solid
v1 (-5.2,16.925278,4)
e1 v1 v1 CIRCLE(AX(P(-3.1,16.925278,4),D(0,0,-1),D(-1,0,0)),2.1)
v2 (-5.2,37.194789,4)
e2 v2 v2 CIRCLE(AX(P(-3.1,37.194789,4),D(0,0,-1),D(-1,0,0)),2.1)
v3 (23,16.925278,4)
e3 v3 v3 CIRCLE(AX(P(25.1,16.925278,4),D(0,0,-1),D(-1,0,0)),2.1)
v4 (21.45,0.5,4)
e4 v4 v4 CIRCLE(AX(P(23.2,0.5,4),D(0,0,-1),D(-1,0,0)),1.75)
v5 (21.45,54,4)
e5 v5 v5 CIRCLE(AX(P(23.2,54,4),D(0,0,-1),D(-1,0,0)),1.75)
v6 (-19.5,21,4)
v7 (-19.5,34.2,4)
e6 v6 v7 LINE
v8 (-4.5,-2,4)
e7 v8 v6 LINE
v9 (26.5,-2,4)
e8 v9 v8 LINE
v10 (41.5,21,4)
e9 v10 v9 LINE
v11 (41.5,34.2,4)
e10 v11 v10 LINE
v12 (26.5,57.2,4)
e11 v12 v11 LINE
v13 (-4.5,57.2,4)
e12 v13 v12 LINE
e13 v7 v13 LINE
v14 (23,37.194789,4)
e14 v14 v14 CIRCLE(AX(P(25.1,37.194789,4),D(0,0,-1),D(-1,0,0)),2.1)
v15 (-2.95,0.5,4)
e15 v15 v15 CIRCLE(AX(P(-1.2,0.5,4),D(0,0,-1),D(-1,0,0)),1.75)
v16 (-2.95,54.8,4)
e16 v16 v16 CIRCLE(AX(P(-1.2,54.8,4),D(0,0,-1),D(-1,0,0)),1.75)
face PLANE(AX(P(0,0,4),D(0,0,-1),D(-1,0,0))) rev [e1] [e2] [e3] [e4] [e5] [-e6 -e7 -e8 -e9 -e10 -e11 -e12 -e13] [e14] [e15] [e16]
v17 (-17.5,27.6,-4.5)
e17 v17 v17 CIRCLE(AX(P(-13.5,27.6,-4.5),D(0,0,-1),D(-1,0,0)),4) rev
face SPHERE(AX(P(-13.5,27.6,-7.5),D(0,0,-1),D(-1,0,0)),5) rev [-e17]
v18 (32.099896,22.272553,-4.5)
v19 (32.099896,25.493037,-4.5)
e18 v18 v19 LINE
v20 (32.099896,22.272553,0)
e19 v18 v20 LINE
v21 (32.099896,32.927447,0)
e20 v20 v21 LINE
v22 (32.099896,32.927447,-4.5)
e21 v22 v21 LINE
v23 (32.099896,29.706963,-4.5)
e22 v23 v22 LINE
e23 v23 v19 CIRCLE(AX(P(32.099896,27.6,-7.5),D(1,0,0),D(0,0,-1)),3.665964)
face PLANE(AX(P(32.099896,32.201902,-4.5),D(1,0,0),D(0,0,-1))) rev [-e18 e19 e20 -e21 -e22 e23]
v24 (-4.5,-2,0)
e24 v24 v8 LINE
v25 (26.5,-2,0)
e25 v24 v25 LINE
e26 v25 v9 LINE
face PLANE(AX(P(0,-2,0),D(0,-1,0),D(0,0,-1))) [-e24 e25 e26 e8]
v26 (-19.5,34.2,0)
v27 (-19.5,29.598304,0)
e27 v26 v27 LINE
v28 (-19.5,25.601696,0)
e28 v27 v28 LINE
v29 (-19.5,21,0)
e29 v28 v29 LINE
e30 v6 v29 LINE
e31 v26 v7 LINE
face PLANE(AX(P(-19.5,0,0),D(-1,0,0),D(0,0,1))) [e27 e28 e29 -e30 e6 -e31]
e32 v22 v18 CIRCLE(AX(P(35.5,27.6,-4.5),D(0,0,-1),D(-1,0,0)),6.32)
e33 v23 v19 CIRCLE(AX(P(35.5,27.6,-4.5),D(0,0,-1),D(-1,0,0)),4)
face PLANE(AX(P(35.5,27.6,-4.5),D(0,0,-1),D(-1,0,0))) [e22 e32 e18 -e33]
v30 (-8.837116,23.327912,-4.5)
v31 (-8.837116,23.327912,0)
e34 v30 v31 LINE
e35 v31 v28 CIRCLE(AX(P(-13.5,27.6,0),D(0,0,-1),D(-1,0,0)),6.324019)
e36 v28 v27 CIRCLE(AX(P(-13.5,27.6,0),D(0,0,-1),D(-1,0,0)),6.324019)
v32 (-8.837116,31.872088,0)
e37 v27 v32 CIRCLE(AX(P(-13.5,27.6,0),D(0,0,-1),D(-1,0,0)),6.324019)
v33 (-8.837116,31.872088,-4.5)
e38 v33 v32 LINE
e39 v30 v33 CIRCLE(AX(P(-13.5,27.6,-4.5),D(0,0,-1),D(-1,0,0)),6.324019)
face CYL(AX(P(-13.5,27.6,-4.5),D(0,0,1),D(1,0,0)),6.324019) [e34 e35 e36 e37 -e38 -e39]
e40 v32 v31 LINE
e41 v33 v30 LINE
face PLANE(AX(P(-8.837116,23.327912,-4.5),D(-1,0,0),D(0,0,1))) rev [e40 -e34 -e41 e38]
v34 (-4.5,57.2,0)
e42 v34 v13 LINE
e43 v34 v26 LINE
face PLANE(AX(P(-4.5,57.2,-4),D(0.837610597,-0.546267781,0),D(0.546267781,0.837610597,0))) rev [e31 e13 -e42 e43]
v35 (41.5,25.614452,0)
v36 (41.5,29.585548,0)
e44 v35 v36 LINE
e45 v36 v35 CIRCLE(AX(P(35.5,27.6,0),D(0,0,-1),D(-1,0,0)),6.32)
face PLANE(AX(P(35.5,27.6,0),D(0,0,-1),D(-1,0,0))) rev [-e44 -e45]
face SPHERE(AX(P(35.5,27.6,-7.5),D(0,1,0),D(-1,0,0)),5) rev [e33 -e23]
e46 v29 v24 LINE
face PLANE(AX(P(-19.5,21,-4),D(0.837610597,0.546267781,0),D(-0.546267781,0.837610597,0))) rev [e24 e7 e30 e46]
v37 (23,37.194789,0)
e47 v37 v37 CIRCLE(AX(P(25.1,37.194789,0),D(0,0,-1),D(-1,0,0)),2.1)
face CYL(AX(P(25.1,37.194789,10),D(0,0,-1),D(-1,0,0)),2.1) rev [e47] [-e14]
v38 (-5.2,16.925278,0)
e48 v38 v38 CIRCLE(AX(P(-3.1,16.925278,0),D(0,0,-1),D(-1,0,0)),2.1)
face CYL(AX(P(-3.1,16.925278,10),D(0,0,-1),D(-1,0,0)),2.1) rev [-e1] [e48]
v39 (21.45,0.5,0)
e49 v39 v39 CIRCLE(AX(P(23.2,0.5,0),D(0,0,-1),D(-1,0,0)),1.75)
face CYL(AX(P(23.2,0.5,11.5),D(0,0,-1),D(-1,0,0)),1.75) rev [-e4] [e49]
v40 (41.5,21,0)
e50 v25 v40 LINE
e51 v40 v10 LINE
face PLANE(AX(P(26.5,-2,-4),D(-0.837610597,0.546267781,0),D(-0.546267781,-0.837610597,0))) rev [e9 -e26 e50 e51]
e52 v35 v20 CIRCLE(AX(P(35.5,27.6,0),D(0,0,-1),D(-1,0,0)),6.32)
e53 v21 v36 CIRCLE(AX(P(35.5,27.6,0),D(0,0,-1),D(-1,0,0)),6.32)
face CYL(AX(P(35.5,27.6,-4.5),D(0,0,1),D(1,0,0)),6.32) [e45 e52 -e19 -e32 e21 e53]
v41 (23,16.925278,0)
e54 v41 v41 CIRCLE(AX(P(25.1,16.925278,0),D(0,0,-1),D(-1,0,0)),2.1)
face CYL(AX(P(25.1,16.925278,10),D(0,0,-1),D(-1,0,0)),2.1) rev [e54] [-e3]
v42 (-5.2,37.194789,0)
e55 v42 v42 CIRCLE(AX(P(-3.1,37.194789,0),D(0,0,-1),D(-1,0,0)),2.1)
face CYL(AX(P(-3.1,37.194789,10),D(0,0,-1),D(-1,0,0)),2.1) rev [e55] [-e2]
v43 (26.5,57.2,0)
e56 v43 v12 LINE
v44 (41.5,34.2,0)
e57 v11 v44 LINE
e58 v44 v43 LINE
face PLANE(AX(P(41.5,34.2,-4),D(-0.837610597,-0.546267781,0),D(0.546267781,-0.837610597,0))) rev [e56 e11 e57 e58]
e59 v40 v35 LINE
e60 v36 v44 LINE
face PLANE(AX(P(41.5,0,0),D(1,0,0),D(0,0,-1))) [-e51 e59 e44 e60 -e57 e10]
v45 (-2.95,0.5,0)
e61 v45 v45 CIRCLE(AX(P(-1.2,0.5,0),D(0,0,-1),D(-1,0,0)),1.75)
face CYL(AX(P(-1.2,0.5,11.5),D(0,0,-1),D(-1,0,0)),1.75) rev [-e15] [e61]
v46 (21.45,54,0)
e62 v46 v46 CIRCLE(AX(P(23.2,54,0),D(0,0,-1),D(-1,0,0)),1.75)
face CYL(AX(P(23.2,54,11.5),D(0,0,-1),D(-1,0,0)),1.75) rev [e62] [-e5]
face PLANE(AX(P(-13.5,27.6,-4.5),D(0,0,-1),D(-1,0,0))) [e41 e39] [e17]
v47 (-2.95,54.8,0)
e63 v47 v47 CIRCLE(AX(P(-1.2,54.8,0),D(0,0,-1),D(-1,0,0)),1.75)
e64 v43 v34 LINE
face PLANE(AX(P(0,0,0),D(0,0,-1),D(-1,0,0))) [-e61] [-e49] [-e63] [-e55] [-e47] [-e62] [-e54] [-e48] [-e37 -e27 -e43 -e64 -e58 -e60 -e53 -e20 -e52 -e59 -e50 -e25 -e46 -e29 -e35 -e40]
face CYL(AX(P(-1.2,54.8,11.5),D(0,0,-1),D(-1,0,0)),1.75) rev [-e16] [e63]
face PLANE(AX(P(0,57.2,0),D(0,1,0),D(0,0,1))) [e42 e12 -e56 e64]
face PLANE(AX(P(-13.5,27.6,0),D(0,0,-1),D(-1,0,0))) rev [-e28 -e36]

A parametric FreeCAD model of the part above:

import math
import FreeCAD as App
import Part
import Sketcher
Q = App.Units.Quantity

doc = App.newDocument("Part")
body = doc.addObject("PartDesign::Body", "Body")

# Sketch on XY plane
sketch1 = body.newObject("Sketcher::SketchObject", "Sketch")
sketch1.AttachmentSupport = (doc.getObject("XY_Plane"), [""])
sketch1.MapMode = "FlatFace"
sketch1.addGeometry([
    Part.LineSegment(App.Vector(0, 55, 0), App.Vector(0, 0, 0)),
    Part.LineSegment(App.Vector(0, 0, 0), App.Vector(22, 0, 0)),
    Part.LineSegment(App.Vector(22, 0, 0), App.Vector(22, 55, 0)),
    Part.LineSegment(App.Vector(22, 55, 0), App.Vector(0, 55, 0)),
], False)
sketch1.addConstraint([
    Sketcher.Constraint("Coincident", 0, 2, 1, 1),
    Sketcher.Constraint("Coincident", 1, 2, 2, 1),
    Sketcher.Constraint("Coincident", 2, 2, 3, 1),
    Sketcher.Constraint("Coincident", 3, 2, 0, 1),
    Sketcher.Constraint("Vertical", 0),
    Sketcher.Constraint("Horizontal", 1),
    Sketcher.Constraint("Vertical", 2),
    Sketcher.Constraint("Horizontal", 3),
    Sketcher.Constraint("Coincident", 0, 2, -1, 1),
    Sketcher.Constraint("DistanceX", 1, 1, 1, 2, Q("22 mm")),
    Sketcher.Constraint("DistanceY", 0, 2, 0, 1, Q("55.2 mm")),
])
pad1 = body.newObject("PartDesign::Pad", "Pad")
pad1.Profile = sketch1
pad1.Length = 4

# Sketch on XZ plane
sketch2 = body.newObject("Sketcher::SketchObject", "Sketch001")
sketch2.AttachmentSupport = (doc.getObject("XZ_Plane"), [""])
sketch2.MapMode = "FlatFace"
sketch2.AttachmentOffset = App.Placement(App.Vector(0, 0, -55.2), App.Rotation())
sketch2.addGeometry([
    Part.LineSegment(App.Vector(5, 0, 0), App.Vector(5, 4, 0)),
    Part.LineSegment(App.Vector(5, 4, 0), App.Vector(17.1, 4, 0)),
    Part.LineSegment(App.Vector(17.1, 4, 0), App.Vector(17.1, 0, 0)),
    Part.LineSegment(App.Vector(17.1, 0, 0), App.Vector(5, 0, 0)),
], False)
sketch2.addConstraint([
    Sketcher.Constraint("Coincident", 0, 2, 1, 1),
    Sketcher.Constraint("Coincident", 1, 2, 2, 1),
    Sketcher.Constraint("Coincident", 2, 2, 3, 1),
    Sketcher.Constraint("Coincident", 3, 2, 0, 1),
    Sketcher.Constraint("Vertical", 0),
    Sketcher.Constraint("Horizontal", 1),
    Sketcher.Constraint("Vertical", 2),
    Sketcher.Constraint("Horizontal", 3),
    Sketcher.Constraint("PointOnObject", 2, 2, -1),
    Sketcher.Constraint("DistanceY", 0, 1, 0, 2, Q("4 mm")),
    Sketcher.Constraint("DistanceX", 1, 1, 1, 2, Q("12.1 mm")),
    Sketcher.Constraint("DistanceX", -1, 1, 0, 2, Q("4.95 mm")),
])
pocket1 = body.newObject("PartDesign::Pocket", "Pocket")
pocket1.Profile = sketch2
pocket1.Length = 9.6
pocket1.Reversed = True

# Sketch on XZ plane
sketch3 = body.newObject("Sketcher::SketchObject", "Sketch002")
sketch3.AttachmentSupport = (doc.getObject("XZ_Plane"), [""])
sketch3.MapMode = "FlatFace"
sketch3.addGeometry([
    Part.LineSegment(App.Vector(5, 4, 0), App.Vector(5, 0, 0)),
    Part.LineSegment(App.Vector(5, 0, 0), App.Vector(17.1, 0, 0)),
    Part.LineSegment(App.Vector(17.1, 0, 0), App.Vector(17.1, 4, 0)),
    Part.LineSegment(App.Vector(17.1, 4, 0), App.Vector(5, 4, 0)),
], False)
sketch3.addConstraint([
    Sketcher.Constraint("Coincident", 0, 2, 1, 1),
    Sketcher.Constraint("Coincident", 1, 2, 2, 1),
    Sketcher.Constraint("Coincident", 2, 2, 3, 1),
    Sketcher.Constraint("Coincident", 3, 2, 0, 1),
    Sketcher.Constraint("Vertical", 0),
    Sketcher.Constraint("Horizontal", 1),
    Sketcher.Constraint("Vertical", 2),
    Sketcher.Constraint("Horizontal", 3),
    Sketcher.Constraint("PointOnObject", 0, 2, -1),
    Sketcher.Constraint("DistanceY", 0, 2, 0, 1, Q("4 mm")),
    Sketcher.Constraint("DistanceX", 1, 1, 1, 2, Q("12.1 mm")),
    Sketcher.Constraint("DistanceX", -1, 1, 0, 2, Q("4.95 mm")),
])
pocket2 = body.newObject("PartDesign::Pocket", "Pocket001")
pocket2.Profile = sketch3
pocket2.Length = 9.6

# Sketch on XZ plane
sketch4 = body.newObject("Sketcher::SketchObject", "Sketch003")
sketch4.AttachmentSupport = (doc.getObject("XZ_Plane"), [""])
sketch4.MapMode = "FlatFace"
sketch4.AttachmentOffset = App.Placement(App.Vector(0, 0, -9.6), App.Rotation())
sketch4.addGeometry([
    Part.LineSegment(App.Vector(15, 4, 0), App.Vector(7, 4, 0)),
    Part.ArcOfCircle(Part.Circle(App.Vector(12, -2, 0), App.Vector(0, 0, 1), 8), math.radians(132), math.radians(180)),
    Part.LineSegment(App.Vector(5, -2, 0), App.Vector(17, -2, 0)),
    Part.ArcOfCircle(Part.Circle(App.Vector(10, -2, 0), App.Vector(0, 0, 1), 8), math.radians(0), math.radians(48)),
], False)
sketch4.addConstraint([
    Sketcher.Constraint("Coincident", 0, 2, 1, 1),
    Sketcher.Constraint("Coincident", 1, 2, 2, 1),
    Sketcher.Constraint("Coincident", 2, 2, 3, 1),
    Sketcher.Constraint("Coincident", 3, 2, 0, 1),
    Sketcher.Constraint("Horizontal", 0),
    Sketcher.Constraint("Horizontal", 2),
    Sketcher.Constraint("Equal", 1, 3),
    Sketcher.Constraint("Horizontal", 1, 3, 3, 3),
    Sketcher.Constraint("Radius", 1, Q("7.5 mm")),
    Sketcher.Constraint("DistanceX", 0, 2, 0, 1, Q("7.2 mm")),
    Sketcher.Constraint("DistanceX", 2, 1, 2, 2, Q("12.1 mm")),
    Sketcher.Constraint("DistanceY", -1, 1, 0, 2, Q("4 mm")),
    Sketcher.Constraint("DistanceX", -1, 1, 0, 2, Q("7.4 mm")),
    Sketcher.Constraint("DistanceY", 1, 2, -1, 1, Q("1.5 mm")),
])
pocket3 = body.newObject("PartDesign::Pocket", "Pocket002")
pocket3.Profile = sketch4
pocket3.Length = 16

# Sketch on XZ plane
sketch5 = body.newObject("Sketcher::SketchObject", "Sketch004")
sketch5.AttachmentSupport = (doc.getObject("XZ_Plane"), [""])
sketch5.MapMode = "FlatFace"
sketch5.AttachmentOffset = App.Placement(App.Vector(0, 0, -29.6), App.Rotation())
sketch5.addGeometry([
    Part.LineSegment(App.Vector(17, -2, 0), App.Vector(5, -2, 0)),
    Part.ArcOfCircle(Part.Circle(App.Vector(12, -2, 0), App.Vector(0, 0, 1), 8), math.radians(132), math.radians(180)),
    Part.LineSegment(App.Vector(7, 4, 0), App.Vector(15, 4, 0)),
    Part.ArcOfCircle(Part.Circle(App.Vector(10, -2, 0), App.Vector(0, 0, 1), 8), math.radians(0), math.radians(48)),
], False)
sketch5.addConstraint([
    Sketcher.Constraint("Coincident", 0, 2, 1, 2),
    Sketcher.Constraint("Coincident", 1, 1, 2, 1),
    Sketcher.Constraint("Coincident", 2, 2, 3, 2),
    Sketcher.Constraint("Coincident", 3, 1, 0, 1),
    Sketcher.Constraint("Horizontal", 0),
    Sketcher.Constraint("Horizontal", 2),
    Sketcher.Constraint("Equal", 1, 3),
    Sketcher.Constraint("Horizontal", 1, 3, 3, 3),
    Sketcher.Constraint("Radius", 1, Q("7.5 mm")),
    Sketcher.Constraint("DistanceX", 0, 2, 0, 1, Q("12.1 mm")),
    Sketcher.Constraint("DistanceX", 2, 1, 2, 2, Q("7.2 mm")),
    Sketcher.Constraint("DistanceY", -1, 1, 1, 1, Q("4 mm")),
    Sketcher.Constraint("DistanceY", 0, 2, -1, 1, Q("1.5 mm")),
    Sketcher.Constraint("DistanceX", -1, 1, 1, 1, Q("7.4 mm")),
])
pocket4 = body.newObject("PartDesign::Pocket", "Pocket003")
pocket4.Profile = sketch5
pocket4.Length = 16

# Sketch on XY plane
sketch6 = body.newObject("Sketcher::SketchObject", "Sketch005")
sketch6.AttachmentSupport = (doc.getObject("XY_Plane"), [""])
sketch6.MapMode = "FlatFace"
sketch6.addGeometry([
    Part.LineSegment(App.Vector(16.9, 29.6, 0), App.Vector(16.9, 25.6, 0)),
    Part.LineSegment(App.Vector(16.9, 25.6, 0), App.Vector(5.1, 25.6, 0)),
    Part.LineSegment(App.Vector(5.1, 25.6, 0), App.Vector(5.1, 29.6, 0)),
    Part.LineSegment(App.Vector(5.1, 29.6, 0), App.Vector(16.9, 29.6, 0)),
], False)
sketch6.addConstraint([
    Sketcher.Constraint("Coincident", 0, 2, 1, 1),
    Sketcher.Constraint("Coincident", 1, 2, 2, 1),
    Sketcher.Constraint("Coincident", 2, 2, 3, 1),
    Sketcher.Constraint("Coincident", 3, 2, 0, 1),
    Sketcher.Constraint("Vertical", 0),
    Sketcher.Constraint("Horizontal", 1),
    Sketcher.Constraint("Vertical", 2),
    Sketcher.Constraint("Horizontal", 3),
    Sketcher.Constraint("DistanceY", 0, 2, 0, 1, Q("4 mm")),
    Sketcher.Constraint("DistanceY", -1, 1, 0, 2, Q("25.6 mm")),
    Sketcher.Constraint("DistanceX", 1, 2, 1, 1, Q("11.778482 mm")),
    Sketcher.Constraint("DistanceX", -1, 1, 0, 2, Q("16.889241 mm")),
])
pocket5 = body.newObject("PartDesign::Pocket", "Pocket004")
pocket5.Profile = sketch6
pocket5.Length = 2
pocket5.Reversed = True

# Sketch on XZ plane
sketch7 = body.newObject("Sketcher::SketchObject", "Sketch006")
sketch7.AttachmentSupport = (doc.getObject("XZ_Plane"), [""])
sketch7.MapMode = "FlatFace"
sketch7.AttachmentOffset = App.Placement(App.Vector(0, 0, -55.2), App.Rotation())
sketch7.addGeometry([
    Part.LineSegment(App.Vector(0, 0, 0), App.Vector(0, 4, 0)),  # 0
    Part.LineSegment(App.Vector(0, 4, 0), App.Vector(5, 4, 0)),  # 1
    Part.LineSegment(App.Vector(5, 4, 0), App.Vector(5, 0, 0)),  # 2
    Part.LineSegment(App.Vector(5, 0, 0), App.Vector(0, 0, 0)),  # 3
    Part.LineSegment(App.Vector(17.1, 0, 0), App.Vector(17.1, 4, 0)),  # 4
    Part.LineSegment(App.Vector(17.1, 4, 0), App.Vector(22, 4, 0)),  # 5
    Part.LineSegment(App.Vector(22, 4, 0), App.Vector(22, 0, 0)),  # 6
    Part.LineSegment(App.Vector(22, 0, 0), App.Vector(17.1, 0, 0)),  # 7
], False)
sketch7.addConstraint([
    Sketcher.Constraint("Coincident", 0, 2, 1, 1),
    Sketcher.Constraint("Coincident", 1, 2, 2, 1),
    Sketcher.Constraint("Coincident", 2, 2, 3, 1),
    Sketcher.Constraint("Coincident", 3, 2, 0, 1),
    Sketcher.Constraint("Coincident", 4, 2, 5, 1),
    Sketcher.Constraint("Coincident", 5, 2, 6, 1),
    Sketcher.Constraint("Coincident", 6, 2, 7, 1),
    Sketcher.Constraint("Coincident", 7, 2, 4, 1),
    Sketcher.Constraint("Vertical", 0),
    Sketcher.Constraint("Horizontal", 1),
    Sketcher.Constraint("Vertical", 2),
    Sketcher.Constraint("Horizontal", 3),
    Sketcher.Constraint("Vertical", 4),
    Sketcher.Constraint("Horizontal", 5),
    Sketcher.Constraint("Vertical", 6),
    Sketcher.Constraint("Horizontal", 7),
    Sketcher.Constraint("Coincident", 3, 2, -1, 1),
    Sketcher.Constraint("PointOnObject", 6, 2, -1),
    Sketcher.Constraint("Horizontal", 1, 2, 4, 2),
    Sketcher.Constraint("Equal", 3, 5),
    Sketcher.Constraint("DistanceY", 0, 1, 0, 2, Q("4 mm")),
    Sketcher.Constraint("DistanceX", -1, 1, 5, 2, Q("22 mm")),
    Sketcher.Constraint("DistanceX", 1, 1, 1, 2, Q("4.95 mm")),
])
pad2 = body.newObject("PartDesign::Pad", "Pad001")
pad2.Profile = sketch7
pad2.Length = 2
pad2.Reversed = True

# Sketch on YZ plane
sketch8 = body.newObject("Sketcher::SketchObject", "Sketch007")
sketch8.AttachmentSupport = (doc.getObject("YZ_Plane"), [""])
sketch8.MapMode = "FlatFace"
sketch8.AttachmentOffset = App.Placement(App.Vector(0, 0, 4.95), App.Rotation())
sketch8.addGeometry([
    Part.LineSegment(App.Vector(57.2, 4, 0), App.Vector(55.4, 4, 0)),
    Part.LineSegment(App.Vector(55.4, 4, 0), App.Vector(55.4, 0, 0)),
    Part.LineSegment(App.Vector(55.4, 0, 0), App.Vector(57.2, 0, 0)),
    Part.LineSegment(App.Vector(57.2, 0, 0), App.Vector(57.2, 4, 0)),
], False)
sketch8.addConstraint([
    Sketcher.Constraint("Coincident", 0, 2, 1, 1),
    Sketcher.Constraint("Coincident", 1, 2, 2, 1),
    Sketcher.Constraint("Coincident", 2, 2, 3, 1),
    Sketcher.Constraint("Coincident", 3, 2, 0, 1),
    Sketcher.Constraint("Horizontal", 0),
    Sketcher.Constraint("Vertical", 1),
    Sketcher.Constraint("Horizontal", 2),
    Sketcher.Constraint("Vertical", 3),
    Sketcher.Constraint("PointOnObject", 1, 2, -1),
    Sketcher.Constraint("DistanceY", 1, 2, 1, 1, Q("4 mm")),
    Sketcher.Constraint("DistanceX", 0, 2, 0, 1, Q("1.8 mm")),
    Sketcher.Constraint("DistanceX", -1, 1, 0, 2, Q("55.4 mm")),
])
pad3 = body.newObject("PartDesign::Pad", "Pad002")
pad3.Profile = sketch8
pad3.Length = 12.1

# Sketch on XZ plane
sketch9 = body.newObject("Sketcher::SketchObject", "Sketch008")
sketch9.AttachmentSupport = (doc.getObject("XZ_Plane"), [""])
sketch9.MapMode = "FlatFace"
sketch9.addGeometry([
    Part.LineSegment(App.Vector(17.1, 4, 0), App.Vector(17.1, 0, 0)),  # 0
    Part.LineSegment(App.Vector(17.1, 0, 0), App.Vector(22, 0, 0)),  # 1
    Part.LineSegment(App.Vector(22, 0, 0), App.Vector(22, 4, 0)),  # 2
    Part.LineSegment(App.Vector(22, 4, 0), App.Vector(17.1, 4, 0)),  # 3
    Part.LineSegment(App.Vector(0, 4, 0), App.Vector(0, 0, 0)),  # 4
    Part.LineSegment(App.Vector(0, 0, 0), App.Vector(5, 0, 0)),  # 5
    Part.LineSegment(App.Vector(5, 0, 0), App.Vector(5, 4, 0)),  # 6
    Part.LineSegment(App.Vector(5, 4, 0), App.Vector(0, 4, 0)),  # 7
], False)
sketch9.addConstraint([
    Sketcher.Constraint("Coincident", 0, 2, 1, 1),
    Sketcher.Constraint("Coincident", 1, 2, 2, 1),
    Sketcher.Constraint("Coincident", 2, 2, 3, 1),
    Sketcher.Constraint("Coincident", 3, 2, 0, 1),
    Sketcher.Constraint("Coincident", 4, 2, 5, 1),
    Sketcher.Constraint("Coincident", 5, 2, 6, 1),
    Sketcher.Constraint("Coincident", 6, 2, 7, 1),
    Sketcher.Constraint("Coincident", 7, 2, 4, 1),
    Sketcher.Constraint("Vertical", 0),
    Sketcher.Constraint("Horizontal", 1),
    Sketcher.Constraint("Vertical", 2),
    Sketcher.Constraint("Horizontal", 3),
    Sketcher.Constraint("Vertical", 4),
    Sketcher.Constraint("Horizontal", 5),
    Sketcher.Constraint("Vertical", 6),
    Sketcher.Constraint("Horizontal", 7),
    Sketcher.Constraint("Coincident", 4, 2, -1, 1),
    Sketcher.Constraint("PointOnObject", 0, 2, -1),
    Sketcher.Constraint("Horizontal", 3, 2, 6, 2),
    Sketcher.Constraint("Equal", 3, 5),
    Sketcher.Constraint("DistanceY", 0, 2, 0, 1, Q("4 mm")),
    Sketcher.Constraint("DistanceX", -1, 1, 1, 2, Q("22 mm")),
    Sketcher.Constraint("DistanceX", 1, 1, 1, 2, Q("4.95 mm")),
])
pad4 = body.newObject("PartDesign::Pad", "Pad003")
pad4.Profile = sketch9
pad4.Length = 2

# Sketch on YZ plane
sketch10 = body.newObject("Sketcher::SketchObject", "Sketch009")
sketch10.AttachmentSupport = (doc.getObject("YZ_Plane"), [""])
sketch10.MapMode = "FlatFace"
sketch10.AttachmentOffset = App.Placement(App.Vector(0, 0, 4.95), App.Rotation())
sketch10.addGeometry([
    Part.LineSegment(App.Vector(-0.2, 4, 0), App.Vector(-2, 4, 0)),
    Part.LineSegment(App.Vector(-2, 4, 0), App.Vector(-2, 0, 0)),
    Part.LineSegment(App.Vector(-2, 0, 0), App.Vector(-0.2, 0, 0)),
    Part.LineSegment(App.Vector(-0.2, 0, 0), App.Vector(-0.2, 4, 0)),
], False)
sketch10.addConstraint([
    Sketcher.Constraint("Coincident", 0, 2, 1, 1),
    Sketcher.Constraint("Coincident", 1, 2, 2, 1),
    Sketcher.Constraint("Coincident", 2, 2, 3, 1),
    Sketcher.Constraint("Coincident", 3, 2, 0, 1),
    Sketcher.Constraint("Horizontal", 0),
    Sketcher.Constraint("Vertical", 1),
    Sketcher.Constraint("Horizontal", 2),
    Sketcher.Constraint("Vertical", 3),
    Sketcher.Constraint("PointOnObject", 1, 2, -1),
    Sketcher.Constraint("DistanceY", 1, 2, 1, 1, Q("4 mm")),
    Sketcher.Constraint("DistanceX", 0, 2, 0, 1, Q("1.8 mm")),
    Sketcher.Constraint("DistanceX", 0, 2, -1, 1, Q("2 mm")),
])
pad5 = body.newObject("PartDesign::Pad", "Pad004")
pad5.Profile = sketch10
pad5.Length = 12.1

# Sketch on YZ plane
sketch11 = body.newObject("Sketcher::SketchObject", "Sketch010")
sketch11.AttachmentSupport = (doc.getObject("YZ_Plane"), [""])
sketch11.MapMode = "FlatFace"
sketch11.addGeometry([
    Part.LineSegment(App.Vector(57.2, 0, 0), App.Vector(-2, 0, 0)),
    Part.LineSegment(App.Vector(-2, 0, 0), App.Vector(-2, 4, 0)),
    Part.LineSegment(App.Vector(-2, 4, 0), App.Vector(57.2, 4, 0)),
    Part.LineSegment(App.Vector(57.2, 4, 0), App.Vector(57.2, 0, 0)),
], False)
sketch11.addConstraint([
    Sketcher.Constraint("Coincident", 0, 2, 1, 1),
    Sketcher.Constraint("Coincident", 1, 2, 2, 1),
    Sketcher.Constraint("Coincident", 2, 2, 3, 1),
    Sketcher.Constraint("Coincident", 3, 2, 0, 1),
    Sketcher.Constraint("Horizontal", 0),
    Sketcher.Constraint("Vertical", 1),
    Sketcher.Constraint("Horizontal", 2),
    Sketcher.Constraint("Vertical", 3),
    Sketcher.Constraint("PointOnObject", 0, 2, -1),
    Sketcher.Constraint("DistanceY", 1, 1, 1, 2, Q("4 mm")),
    Sketcher.Constraint("DistanceX", 0, 2, 0, 1, Q("59.2 mm")),
    Sketcher.Constraint("DistanceX", 0, 2, -1, 1, Q("2 mm")),
])
pad6 = body.newObject("PartDesign::Pad", "Pad005")
pad6.Profile = sketch11
pad6.Length = 11.5
pad6.Reversed = True

# Sketch on YZ plane
sketch12 = body.newObject("Sketcher::SketchObject", "Sketch011")
sketch12.AttachmentSupport = (doc.getObject("YZ_Plane"), [""])
sketch12.MapMode = "FlatFace"
sketch12.AttachmentOffset = App.Placement(App.Vector(0, 0, 22), App.Rotation())
sketch12.addGeometry([
    Part.LineSegment(App.Vector(57.2, 4, 0), App.Vector(-2, 4, 0)),
    Part.LineSegment(App.Vector(-2, 4, 0), App.Vector(-2, 0, 0)),
    Part.LineSegment(App.Vector(-2, 0, 0), App.Vector(57.2, 0, 0)),
    Part.LineSegment(App.Vector(57.2, 0, 0), App.Vector(57.2, 4, 0)),
], False)
sketch12.addConstraint([
    Sketcher.Constraint("Coincident", 0, 2, 1, 1),
    Sketcher.Constraint("Coincident", 1, 2, 2, 1),
    Sketcher.Constraint("Coincident", 2, 2, 3, 1),
    Sketcher.Constraint("Coincident", 3, 2, 0, 1),
    Sketcher.Constraint("Horizontal", 0),
    Sketcher.Constraint("Vertical", 1),
    Sketcher.Constraint("Horizontal", 2),
    Sketcher.Constraint("Vertical", 3),
    Sketcher.Constraint("PointOnObject", 1, 2, -1),
    Sketcher.Constraint("DistanceY", 1, 2, 1, 1, Q("4 mm")),
    Sketcher.Constraint("DistanceX", 0, 2, 0, 1, Q("59.2 mm")),
    Sketcher.Constraint("DistanceX", 0, 2, -1, 1, Q("2 mm")),
])
pad7 = body.newObject("PartDesign::Pad", "Pad006")
pad7.Profile = sketch12
pad7.Length = 11.5

# Sketch on XY plane
sketch13 = body.newObject("Sketcher::SketchObject", "Sketch012")
sketch13.AttachmentSupport = (doc.getObject("XY_Plane"), [""])
sketch13.MapMode = "FlatFace"
sketch13.addGeometry([
    Part.Circle(App.Vector(23.2, 54, 0), App.Vector(0, 0, 1), 1.8),
    Part.Circle(App.Vector(-1.2, 54.8, 0), App.Vector(0, 0, 1), 1.8),
    Part.Circle(App.Vector(-1.2, 0.5, 0), App.Vector(0, 0, 1), 1.8),
    Part.Circle(App.Vector(23.2, 0.5, 0), App.Vector(0, 0, 1), 1.8),
], False)
sketch13.addConstraint([
    Sketcher.Constraint("Equal", 0, 1),
    Sketcher.Constraint("Equal", 1, 2),
    Sketcher.Constraint("Equal", 2, 3),
    Sketcher.Constraint("Horizontal", 2, 3, 3, 3),
    Sketcher.Constraint("Vertical", 1, 3, 2, 3),
    Sketcher.Constraint("Vertical", 0, 3, 3, 3),
    Sketcher.Constraint("Diameter", 0, Q("3.5 mm")),
    Sketcher.Constraint("DistanceY", -1, 1, 0, 3, Q("54 mm")),
    Sketcher.Constraint("DistanceX", -1, 1, 0, 3, Q("23.2 mm")),
    Sketcher.Constraint("DistanceX", 1, 3, -1, 1, Q("1.2 mm")),
    Sketcher.Constraint("DistanceY", -1, 1, 1, 3, Q("54.8 mm")),
    Sketcher.Constraint("DistanceY", -1, 1, 2, 3, Q("0.5 mm")),
])
pocket6 = body.newObject("PartDesign::Pocket", "Pocket005")
pocket6.Profile = sketch13
pocket6.Length = 11.5
pocket6.Reversed = True

# Sketch on XY plane
sketch14 = body.newObject("Sketcher::SketchObject", "Sketch013")
sketch14.AttachmentSupport = (doc.getObject("XY_Plane"), [""])
sketch14.MapMode = "FlatFace"
sketch14.addGeometry([
    Part.LineSegment(App.Vector(17, 55, 0), App.Vector(17, 0, 0)),
    Part.LineSegment(App.Vector(17, 0, 0), App.Vector(5, 0, 0)),
    Part.LineSegment(App.Vector(5, 0, 0), App.Vector(5, 55, 0)),
    Part.LineSegment(App.Vector(5, 55, 0), App.Vector(17, 55, 0)),
], False)
sketch14.addConstraint([
    Sketcher.Constraint("Coincident", 0, 2, 1, 1),
    Sketcher.Constraint("Coincident", 1, 2, 2, 1),
    Sketcher.Constraint("Coincident", 2, 2, 3, 1),
    Sketcher.Constraint("Coincident", 3, 2, 0, 1),
    Sketcher.Constraint("Vertical", 0),
    Sketcher.Constraint("Horizontal", 1),
    Sketcher.Constraint("Vertical", 2),
    Sketcher.Constraint("Horizontal", 3),
    Sketcher.Constraint("DistanceX", 1, 2, 1, 1, Q("12.1 mm")),
    Sketcher.Constraint("DistanceY", 0, 2, 0, 1, Q("55.6 mm")),
    Sketcher.Constraint("DistanceY", 0, 2, -1, 1, Q("0.2 mm")),
    Sketcher.Constraint("DistanceX", -1, 1, 0, 2, Q("17.05 mm")),
])
pocket7 = body.newObject("PartDesign::Pocket", "Pocket006")
pocket7.Profile = sketch14
pocket7.Length = 10
pocket7.Reversed = True

# Sketch on XZ plane
sketch15 = body.newObject("Sketcher::SketchObject", "Sketch014")
sketch15.AttachmentSupport = (doc.getObject("XZ_Plane"), [""])
sketch15.MapMode = "FlatFace"
sketch15.AttachmentOffset = App.Placement(App.Vector(0, 0, -55.4), App.Rotation())
sketch15.addGeometry([
    Part.LineSegment(App.Vector(5, 4, 0), App.Vector(5, 0, 0)),
    Part.LineSegment(App.Vector(5, 0, 0), App.Vector(17.1, 0, 0)),
    Part.LineSegment(App.Vector(17.1, 0, 0), App.Vector(17.1, 4, 0)),
    Part.LineSegment(App.Vector(17.1, 4, 0), App.Vector(5, 4, 0)),
], False)
sketch15.addConstraint([
    Sketcher.Constraint("Coincident", 0, 2, 1, 1),
    Sketcher.Constraint("Coincident", 1, 2, 2, 1),
    Sketcher.Constraint("Coincident", 2, 2, 3, 1),
    Sketcher.Constraint("Coincident", 3, 2, 0, 1),
    Sketcher.Constraint("Vertical", 0),
    Sketcher.Constraint("Horizontal", 1),
    Sketcher.Constraint("Vertical", 2),
    Sketcher.Constraint("Horizontal", 3),
    Sketcher.Constraint("PointOnObject", 0, 2, -1),
    Sketcher.Constraint("DistanceY", 0, 2, 0, 1, Q("4 mm")),
    Sketcher.Constraint("DistanceX", 1, 1, 1, 2, Q("12.1 mm")),
    Sketcher.Constraint("DistanceX", -1, 1, 0, 2, Q("4.95 mm")),
])
pad8 = body.newObject("PartDesign::Pad", "Pad007")
pad8.Profile = sketch15
pad8.Length = 55.6

# Sketch on YZ plane
sketch16 = body.newObject("Sketcher::SketchObject", "Sketch015")
sketch16.AttachmentSupport = (doc.getObject("YZ_Plane"), [""])
sketch16.MapMode = "FlatFace"
sketch16.AttachmentOffset = App.Placement(App.Vector(0, 0, -11.5), App.Rotation())
sketch16.addGeometry([
    Part.LineSegment(App.Vector(57.2, 0, 0), App.Vector(-2, 0, 0)),
    Part.LineSegment(App.Vector(-2, 0, 0), App.Vector(-2, 4, 0)),
    Part.LineSegment(App.Vector(-2, 4, 0), App.Vector(57.2, 4, 0)),
    Part.LineSegment(App.Vector(57.2, 4, 0), App.Vector(57.2, 0, 0)),
], False)
sketch16.addConstraint([
    Sketcher.Constraint("Coincident", 0, 2, 1, 1),
    Sketcher.Constraint("Coincident", 1, 2, 2, 1),
    Sketcher.Constraint("Coincident", 2, 2, 3, 1),
    Sketcher.Constraint("Coincident", 3, 2, 0, 1),
    Sketcher.Constraint("Horizontal", 0),
    Sketcher.Constraint("Vertical", 1),
    Sketcher.Constraint("Horizontal", 2),
    Sketcher.Constraint("Vertical", 3),
    Sketcher.Constraint("PointOnObject", 0, 2, -1),
    Sketcher.Constraint("DistanceY", 1, 1, 1, 2, Q("4 mm")),
    Sketcher.Constraint("DistanceX", 0, 2, 0, 1, Q("59.2 mm")),
    Sketcher.Constraint("DistanceX", 0, 2, -1, 1, Q("2 mm")),
])
pad9 = body.newObject("PartDesign::Pad", "Pad008")
pad9.Profile = sketch16
pad9.Length = 8
pad9.Reversed = True

# Sketch on XY plane
sketch17 = body.newObject("Sketcher::SketchObject", "Sketch016")
sketch17.AttachmentSupport = (doc.getObject("XY_Plane"), [""])
sketch17.MapMode = "FlatFace"
sketch17.addGeometry([
    Part.Circle(App.Vector(25.1, 37.2, 0), App.Vector(0, 0, 1), 2.1),
    Part.Circle(App.Vector(25.1, 16.9, 0), App.Vector(0, 0, 1), 2.1),
    Part.Circle(App.Vector(-3.1, 37.2, 0), App.Vector(0, 0, 1), 2.1),
    Part.Circle(App.Vector(-3.1, 16.9, 0), App.Vector(0, 0, 1), 2.1),
], False)
sketch17.addConstraint([
    Sketcher.Constraint("Equal", 0, 1),
    Sketcher.Constraint("Equal", 1, 2),
    Sketcher.Constraint("Equal", 2, 3),
    Sketcher.Constraint("Horizontal", 0, 3, 2, 3),
    Sketcher.Constraint("Horizontal", 1, 3, 3, 3),
    Sketcher.Constraint("Vertical", 0, 3, 1, 3),
    Sketcher.Constraint("Vertical", 2, 3, 3, 3),
    Sketcher.Constraint("Diameter", 0, Q("4.2 mm")),
    Sketcher.Constraint("DistanceX", -1, 1, 0, 3, Q("25.1 mm")),
    Sketcher.Constraint("DistanceX", 2, 3, -1, 1, Q("3.1 mm")),
    Sketcher.Constraint("DistanceY", -1, 1, 0, 3, Q("37.194789 mm")),
    Sketcher.Constraint("DistanceY", 1, 3, 0, 3, Q("20.269512 mm")),
])
pocket8 = body.newObject("PartDesign::Pocket", "Pocket007")
pocket8.Profile = sketch17
pocket8.Length = 10
pocket8.Reversed = True

# Sketch on YZ plane
sketch18 = body.newObject("Sketcher::SketchObject", "Sketch017")
sketch18.AttachmentSupport = (doc.getObject("YZ_Plane"), [""])
sketch18.MapMode = "FlatFace"
sketch18.AttachmentOffset = App.Placement(App.Vector(0, 0, 33.5), App.Rotation())
sketch18.addGeometry([
    Part.LineSegment(App.Vector(57.2, 4, 0), App.Vector(-2, 4, 0)),
    Part.LineSegment(App.Vector(-2, 4, 0), App.Vector(-2, 0, 0)),
    Part.LineSegment(App.Vector(-2, 0, 0), App.Vector(57.2, 0, 0)),
    Part.LineSegment(App.Vector(57.2, 0, 0), App.Vector(57.2, 4, 0)),
], False)
sketch18.addConstraint([
    Sketcher.Constraint("Coincident", 0, 2, 1, 1),
    Sketcher.Constraint("Coincident", 1, 2, 2, 1),
    Sketcher.Constraint("Coincident", 2, 2, 3, 1),
    Sketcher.Constraint("Coincident", 3, 2, 0, 1),
    Sketcher.Constraint("Horizontal", 0),
    Sketcher.Constraint("Vertical", 1),
    Sketcher.Constraint("Horizontal", 2),
    Sketcher.Constraint("Vertical", 3),
    Sketcher.Constraint("PointOnObject", 1, 2, -1),
    Sketcher.Constraint("DistanceY", 1, 2, 1, 1, Q("4 mm")),
    Sketcher.Constraint("DistanceX", 0, 2, 0, 1, Q("59.2 mm")),
    Sketcher.Constraint("DistanceX", 0, 2, -1, 1, Q("2 mm")),
])
pad10 = body.newObject("PartDesign::Pad", "Pad009")
pad10.Profile = sketch18
pad10.Length = 8

# Sketch on XY plane
sketch19 = body.newObject("Sketcher::SketchObject", "Sketch018")
sketch19.AttachmentSupport = (doc.getObject("XY_Plane"), [""])
sketch19.MapMode = "FlatFace"
sketch19.addGeometry([
    Part.ArcOfCircle(Part.Circle(App.Vector(36, 28, 0), App.Vector(0, 0, 1), 6), math.radians(-123), math.radians(123)),
    Part.LineSegment(App.Vector(32, 22, 0), App.Vector(32, 33, 0)),
    Part.LineSegment(App.Vector(-9, 32, 0), App.Vector(-9, 23, 0)),
    Part.ArcOfCircle(Part.Circle(App.Vector(-14, 28, 0), App.Vector(0, 0, 1), 6), math.radians(42), math.radians(318)),
], False)
sketch19.addConstraint([
    Sketcher.Constraint("Coincident", 0, 1, 1, 1),
    Sketcher.Constraint("Coincident", 1, 2, 0, 2),
    Sketcher.Constraint("Coincident", 2, 1, 3, 1),
    Sketcher.Constraint("Coincident", 3, 2, 2, 2),
    Sketcher.Constraint("Vertical", 1),
    Sketcher.Constraint("Vertical", 2),
    Sketcher.Constraint("Horizontal", 0, 3, 3, 3),
    Sketcher.Constraint("Radius", 0, Q("6.32 mm")),
    Sketcher.Constraint("DistanceX", 3, 3, 0, 3, Q("49 mm")),
    Sketcher.Constraint("DistanceX", -1, 1, 0, 3, Q("35.5 mm")),
    Sketcher.Constraint("DistanceY", -1, 1, 0, 3, Q("27.6 mm")),
    Sketcher.Constraint("Radius", 3, Q("6.324019 mm")),
    Sketcher.Constraint("DistanceY", 1, 1, 1, 2, Q("10.654894 mm")),
    Sketcher.Constraint("DistanceY", 2, 2, 2, 1, Q("8.544175 mm")),
])
pad11 = body.newObject("PartDesign::Pad", "Pad010")
pad11.Profile = sketch19
pad11.Length = 4.5
pad11.Reversed = True

# Sketch on XY plane
sketch20 = body.newObject("Sketcher::SketchObject", "Sketch019")
sketch20.AttachmentSupport = (doc.getObject("XY_Plane"), [""])
sketch20.MapMode = "FlatFace"
sketch20.AttachmentOffset = App.Placement(App.Vector(0, 0, -7.5), App.Rotation())
sketch20.addGeometry([
    Part.LineSegment(App.Vector(36, 23, 0), App.Vector(36, 33, 0)),
    Part.ArcOfCircle(Part.Circle(App.Vector(36, 28, 0), App.Vector(0, 0, 1), 5), math.radians(-90), math.radians(90)),
], False)
sketch20.addGeometry(Part.LineSegment(App.Vector(36, 33, 0), App.Vector(36, 23, 0)), True)  # axis
sketch20.addConstraint([
    Sketcher.Constraint("Coincident", 0, 1, 1, 1),
    Sketcher.Constraint("Coincident", 1, 2, 0, 2),
    Sketcher.Constraint("Vertical", 0),
    Sketcher.Constraint("Vertical", 2),
    Sketcher.Constraint("Coincident", 2, 1, 1, 2),
    Sketcher.Constraint("Vertical", 1, 3, 0, 1),
    Sketcher.Constraint("Equal", 0, 2),
    Sketcher.Constraint("Radius", 1, Q("5 mm")),
    Sketcher.Constraint("DistanceX", -1, 1, 1, 3, Q("35.5 mm")),
    Sketcher.Constraint("DistanceY", -1, 1, 1, 3, Q("27.6 mm")),
])
groove = body.newObject("PartDesign::Groove", "Groove")
groove.Profile = sketch20
groove.ReferenceAxis = (sketch20, ["Axis0"])
groove.Angle = 360

# Sketch on XY plane
sketch21 = body.newObject("Sketcher::SketchObject", "Sketch020")
sketch21.AttachmentSupport = (doc.getObject("XY_Plane"), [""])
sketch21.MapMode = "FlatFace"
sketch21.AttachmentOffset = App.Placement(App.Vector(0, 0, -7.5), App.Rotation())
sketch21.addGeometry([
    Part.LineSegment(App.Vector(-14, 33, 0), App.Vector(-14, 23, 0)),
    Part.ArcOfCircle(Part.Circle(App.Vector(-14, 28, 0), App.Vector(0, 0, 1), 5), math.radians(90), math.radians(270)),
], False)
sketch21.addGeometry(Part.LineSegment(App.Vector(-14, 33, 0), App.Vector(-14, 23, 0)), True)  # axis
sketch21.addConstraint([
    Sketcher.Constraint("Coincident", 0, 1, 1, 1),
    Sketcher.Constraint("Coincident", 1, 2, 0, 2),
    Sketcher.Constraint("Vertical", 0),
    Sketcher.Constraint("Vertical", 2),
    Sketcher.Constraint("Coincident", 2, 1, 0, 1),
    Sketcher.Constraint("Vertical", 1, 3, 0, 1),
    Sketcher.Constraint("Equal", 0, 2),
    Sketcher.Constraint("Radius", 1, Q("5 mm")),
    Sketcher.Constraint("DistanceX", 1, 3, -1, 1, Q("13.5 mm")),
    Sketcher.Constraint("DistanceY", -1, 1, 1, 3, Q("27.6 mm")),
])
groove2 = body.newObject("PartDesign::Groove", "Groove001")
groove2.Profile = sketch21
groove2.ReferenceAxis = (sketch21, ["Axis0"])
groove2.Angle = 360

# Sketch on XY plane
sketch22 = body.newObject("Sketcher::SketchObject", "Sketch021")
sketch22.AttachmentSupport = (doc.getObject("XY_Plane"), [""])
sketch22.MapMode = "FlatFace"
sketch22.AttachmentOffset = App.Placement(App.Vector(0, 0, 4), App.Rotation())
sketch22.addGeometry([
    Part.LineSegment(App.Vector(-20, 57, 0), App.Vector(-20, 34, 0)),  # 0
    Part.LineSegment(App.Vector(-20, 34, 0), App.Vector(-4, 57, 0)),  # 1
    Part.LineSegment(App.Vector(-4, 57, 0), App.Vector(-20, 57, 0)),  # 2
    Part.LineSegment(App.Vector(42, 57, 0), App.Vector(26, 57, 0)),  # 3
    Part.LineSegment(App.Vector(26, 57, 0), App.Vector(42, 34, 0)),  # 4
    Part.LineSegment(App.Vector(42, 34, 0), App.Vector(42, 57, 0)),  # 5
    Part.LineSegment(App.Vector(-20, 21, 0), App.Vector(-20, -2, 0)),  # 6
    Part.LineSegment(App.Vector(-20, -2, 0), App.Vector(-4, -2, 0)),  # 7
    Part.LineSegment(App.Vector(-4, -2, 0), App.Vector(-20, 21, 0)),  # 8
    Part.LineSegment(App.Vector(42, -2, 0), App.Vector(42, 21, 0)),  # 9
    Part.LineSegment(App.Vector(42, 21, 0), App.Vector(26, -2, 0)),  # 10
    Part.LineSegment(App.Vector(26, -2, 0), App.Vector(42, -2, 0)),  # 11
], False)
sketch22.addConstraint([
    Sketcher.Constraint("Coincident", 0, 2, 1, 1),
    Sketcher.Constraint("Coincident", 1, 2, 2, 1),
    Sketcher.Constraint("Coincident", 2, 2, 0, 1),
    Sketcher.Constraint("Coincident", 3, 2, 4, 1),
    Sketcher.Constraint("Coincident", 4, 2, 5, 1),
    Sketcher.Constraint("Coincident", 5, 2, 3, 1),
    Sketcher.Constraint("Coincident", 6, 2, 7, 1),
    Sketcher.Constraint("Coincident", 7, 2, 8, 1),
    Sketcher.Constraint("Coincident", 8, 2, 6, 1),
    Sketcher.Constraint("Coincident", 9, 2, 10, 1),
    Sketcher.Constraint("Coincident", 10, 2, 11, 1),
    Sketcher.Constraint("Coincident", 11, 2, 9, 1),
    Sketcher.Constraint("Vertical", 0),
    Sketcher.Constraint("Horizontal", 2),
    Sketcher.Constraint("Horizontal", 3),
    Sketcher.Constraint("Vertical", 5),
    Sketcher.Constraint("Vertical", 6),
    Sketcher.Constraint("Horizontal", 7),
    Sketcher.Constraint("Vertical", 9),
    Sketcher.Constraint("Horizontal", 11),
    Sketcher.Constraint("Parallel", 4, 8),
    Sketcher.Constraint("Parallel", 1, 10),
    Sketcher.Constraint("Horizontal", 2, 2, 3, 2),
    Sketcher.Constraint("Horizontal", 0, 2, 4, 2),
    Sketcher.Constraint("Horizontal", 8, 2, 9, 2),
    Sketcher.Constraint("Horizontal", 7, 2, 10, 2),
    Sketcher.Constraint("Vertical", 2, 2, 6, 2),
    Sketcher.Constraint("Vertical", 1, 2, 7, 2),
    Sketcher.Constraint("Vertical", 5, 2, 9, 2),
    Sketcher.Constraint("Vertical", 3, 2, 10, 2),
    Sketcher.Constraint("DistanceX", 2, 2, 2, 1, Q("15 mm")),
    Sketcher.Constraint("DistanceY", 0, 2, 0, 1, Q("23 mm")),
    Sketcher.Constraint("DistanceY", 6, 2, -1, 1, Q("2 mm")),
    Sketcher.Constraint("DistanceX", 1, 2, 3, 2, Q("31 mm")),
    Sketcher.Constraint("DistanceX", 0, 2, -1, 1, Q("19.5 mm")),
    Sketcher.Constraint("DistanceY", -1, 1, 0, 2, Q("34.2 mm")),
])
pocket9 = body.newObject("PartDesign::Pocket", "Pocket008")
pocket9.Profile = sketch22
pocket9.Length = 8

doc.recompute()
